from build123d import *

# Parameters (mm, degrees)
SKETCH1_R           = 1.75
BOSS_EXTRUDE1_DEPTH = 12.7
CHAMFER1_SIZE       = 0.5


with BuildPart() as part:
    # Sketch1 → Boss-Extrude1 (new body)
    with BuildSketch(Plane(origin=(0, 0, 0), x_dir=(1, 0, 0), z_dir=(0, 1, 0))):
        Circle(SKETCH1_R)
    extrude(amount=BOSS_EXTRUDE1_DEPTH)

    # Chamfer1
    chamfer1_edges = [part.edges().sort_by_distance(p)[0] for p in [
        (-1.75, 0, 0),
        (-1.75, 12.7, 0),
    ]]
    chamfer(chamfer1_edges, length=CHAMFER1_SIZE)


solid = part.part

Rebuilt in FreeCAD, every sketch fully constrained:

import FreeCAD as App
import Part
import Sketcher
Q = App.Units.Quantity


def edges_at(feature, points):
    """Names of the edges that pass closest to the given points."""
    edges = feature.Shape.Edges
    near = lambda p: min(range(len(edges)), key=lambda i: edges[i].distToShape(Part.Vertex(*p))[0])
    return sorted({f"Edge{near(p) + 1}" for p in points})

doc = App.newDocument("Part")
body = doc.addObject("PartDesign::Body", "Body")

sketch1 = body.newObject("Sketcher::SketchObject", "Sketch")
sketch1.AttachmentSupport = (doc.getObject("XZ_Plane"), [""])
sketch1.MapMode = "FlatFace"
sketch1.addGeometry(Part.Circle(App.Vector(0, 0, 0), App.Vector(0, 0, 1), 1.8), False)
sketch1.addConstraint([
    Sketcher.Constraint("Coincident", 0, 3, -1, 1),
    Sketcher.Constraint("Diameter", 0, Q("3.5 mm")),
])
pad1 = body.newObject("PartDesign::Pad", "Pad")
pad1.Profile = sketch1
pad1.Length = 12.7
pad1.Reversed = True
doc.recompute()

chamfer = body.newObject("PartDesign::Chamfer", "Chamfer")
chamfer.Base = (pad1, edges_at(pad1, [(-1.75, 0, 0), (-1.75, 12.7, 0)]))
chamfer.Size = 0.5

doc.recompute()
